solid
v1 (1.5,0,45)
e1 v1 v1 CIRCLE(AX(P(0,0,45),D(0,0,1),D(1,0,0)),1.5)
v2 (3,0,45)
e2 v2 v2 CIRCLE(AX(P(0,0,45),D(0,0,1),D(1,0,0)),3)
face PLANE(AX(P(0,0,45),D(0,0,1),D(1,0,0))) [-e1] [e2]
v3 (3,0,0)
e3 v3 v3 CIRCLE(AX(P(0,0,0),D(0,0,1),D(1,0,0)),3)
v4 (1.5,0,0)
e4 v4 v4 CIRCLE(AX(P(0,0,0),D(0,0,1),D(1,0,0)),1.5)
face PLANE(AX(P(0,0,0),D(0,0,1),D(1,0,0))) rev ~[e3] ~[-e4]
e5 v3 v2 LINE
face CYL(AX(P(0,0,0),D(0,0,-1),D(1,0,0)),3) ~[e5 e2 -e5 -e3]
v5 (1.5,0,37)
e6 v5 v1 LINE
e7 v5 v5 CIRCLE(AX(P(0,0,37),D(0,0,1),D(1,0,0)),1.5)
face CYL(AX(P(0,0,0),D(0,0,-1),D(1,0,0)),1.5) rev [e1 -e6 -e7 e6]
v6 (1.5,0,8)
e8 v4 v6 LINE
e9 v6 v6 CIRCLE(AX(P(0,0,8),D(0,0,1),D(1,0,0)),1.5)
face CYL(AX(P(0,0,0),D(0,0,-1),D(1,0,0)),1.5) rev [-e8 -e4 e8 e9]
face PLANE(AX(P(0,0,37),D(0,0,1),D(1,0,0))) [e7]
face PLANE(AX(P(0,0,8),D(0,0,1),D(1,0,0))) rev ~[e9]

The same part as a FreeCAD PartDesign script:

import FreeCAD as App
import Part
import Sketcher

V = App.Vector

doc = App.newDocument("Part")
body = doc.addObject("PartDesign::Body", "Body")

sketch1 = doc.addObject("Sketcher::SketchObject", "Sketch")
body.addObject(sketch1)
sketch1.AttachmentSupport = (doc.XY_Plane, [""])
sketch1.MapMode = "FlatFace"
sketch1.addGeometry([
    Part.Circle(V(0, 0, 0), V(0, 0, 1), 3),
    Part.Circle(V(0, 0, 0), V(0, 0, 1), 1.5),
], False)
sketch1.addConstraint([
    Sketcher.Constraint("Coincident", 0, 3, -1, 1),
    Sketcher.Constraint("Coincident", 1, 3, -1, 1),
    Sketcher.Constraint("Diameter", 0, 6.0),
    Sketcher.Constraint("Diameter", 1, 3.0),
])
pad1 = doc.addObject("PartDesign::Pad", "Pad")
body.addObject(pad1)
pad1.Profile = sketch1
pad1.Length = 45

sketch2 = doc.addObject("Sketcher::SketchObject", "Sketch001")
body.addObject(sketch2)
sketch2.AttachmentSupport = (doc.XY_Plane, [""])
sketch2.MapMode = "FlatFace"
sketch2.AttachmentOffset = App.Placement(V(0, 0, 37), App.Rotation())
sketch2.addGeometry(Part.Circle(V(0, 0, 0), V(0, 0, 1), 1.5), False)
sketch2.addConstraint([
    Sketcher.Constraint("Coincident", 0, 3, -1, 1),
    Sketcher.Constraint("Diameter", 0, 3.0),
])
pad2 = doc.addObject("PartDesign::Pad", "Pad001")
body.addObject(pad2)
pad2.Profile = sketch2
pad2.Length = 29
pad2.Reversed = True

doc.recompute()
